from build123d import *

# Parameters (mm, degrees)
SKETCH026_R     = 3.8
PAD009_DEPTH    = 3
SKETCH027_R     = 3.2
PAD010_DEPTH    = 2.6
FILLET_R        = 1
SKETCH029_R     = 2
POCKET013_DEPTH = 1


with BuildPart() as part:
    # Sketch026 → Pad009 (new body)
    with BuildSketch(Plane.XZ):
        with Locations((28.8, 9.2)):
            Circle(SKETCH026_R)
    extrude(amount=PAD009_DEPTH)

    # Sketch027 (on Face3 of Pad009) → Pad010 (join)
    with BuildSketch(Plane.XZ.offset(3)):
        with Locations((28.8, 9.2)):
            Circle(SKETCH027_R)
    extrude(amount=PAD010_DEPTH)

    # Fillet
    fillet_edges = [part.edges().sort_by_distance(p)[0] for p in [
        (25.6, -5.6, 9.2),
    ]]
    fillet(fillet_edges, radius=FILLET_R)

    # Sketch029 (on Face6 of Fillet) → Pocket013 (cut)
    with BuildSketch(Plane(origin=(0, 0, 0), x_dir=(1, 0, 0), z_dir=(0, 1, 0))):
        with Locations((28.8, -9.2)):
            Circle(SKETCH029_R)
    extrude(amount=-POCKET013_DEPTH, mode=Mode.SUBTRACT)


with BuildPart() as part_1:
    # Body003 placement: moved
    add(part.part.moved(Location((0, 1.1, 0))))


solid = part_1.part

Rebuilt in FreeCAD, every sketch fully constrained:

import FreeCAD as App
import Part
import Sketcher
from FreeCAD import Vector
Q = App.Units.Quantity


def edges_at(feature, points):
    """Names of the edges that pass closest to the given points."""
    edges = feature.Shape.Edges
    near = lambda p: min(range(len(edges)), key=lambda i: edges[i].distToShape(Part.Vertex(*p))[0])
    return sorted({f"Edge{near(p) + 1}" for p in points})

doc = App.newDocument("Part")
body = doc.addObject("PartDesign::Body", "Body")

# Sketch on XZ plane
sketch1 = doc.addObject("Sketcher::SketchObject", "Sketch")
body.addObject(sketch1)
sketch1.AttachmentSupport = (doc.XZ_Plane, [""])
sketch1.MapMode = "FlatFace"
sketch1.addGeometry(Part.Circle(Vector(28.8, 9.2, 0), Vector(0, 0, 1), 3.8), False)
sketch1.addConstraint([
    Sketcher.Constraint("Diameter", 0, Q("7.6 mm")),
    Sketcher.Constraint("DistanceX", -1, 1, 0, 3, Q("28.8 mm")),
    Sketcher.Constraint("DistanceY", -1, 1, 0, 3, Q("9.2 mm")),
])
pad1 = doc.addObject("PartDesign::Pad", "Pad")
body.addObject(pad1)
pad1.Profile = sketch1
pad1.Length = 3

# Sketch on XZ plane
sketch2 = doc.addObject("Sketcher::SketchObject", "Sketch001")
body.addObject(sketch2)
sketch2.AttachmentSupport = (doc.XZ_Plane, [""])
sketch2.MapMode = "FlatFace"
sketch2.AttachmentOffset = App.Placement(Vector(0, 0, 3), App.Rotation())
sketch2.addGeometry(Part.Circle(Vector(28.8, 9.2, 0), Vector(0, 0, 1), 3.2), False)
sketch2.addConstraint([
    Sketcher.Constraint("Diameter", 0, Q("6.4 mm")),
    Sketcher.Constraint("DistanceX", -1, 1, 0, 3, Q("28.8 mm")),
    Sketcher.Constraint("DistanceY", -1, 1, 0, 3, Q("9.2 mm")),
])
pad2 = doc.addObject("PartDesign::Pad", "Pad001")
body.addObject(pad2)
pad2.Profile = sketch2
pad2.Length = 2.6
doc.recompute()

fillet = doc.addObject("PartDesign::Fillet", "Fillet")
body.addObject(fillet)
fillet.Base = (pad2, edges_at(pad2, [(25.6, -5.6, 9.2)]))
fillet.Radius = 1

# Sketch on XZ plane
sketch3 = doc.addObject("Sketcher::SketchObject", "Sketch002")
body.addObject(sketch3)
sketch3.AttachmentSupport = (doc.XZ_Plane, [""])
sketch3.MapMode = "FlatFace"
sketch3.addGeometry(Part.Circle(Vector(28.8, 9.2, 0), Vector(0, 0, 1), 2), False)
sketch3.addConstraint([
    Sketcher.Constraint("Diameter", 0, Q("4 mm")),
    Sketcher.Constraint("DistanceX", -1, 1, 0, 3, Q("28.8 mm")),
    Sketcher.Constraint("DistanceY", -1, 1, 0, 3, Q("9.2 mm")),
])
pocket1 = doc.addObject("PartDesign::Pocket", "Pocket")
body.addObject(pocket1)
pocket1.Profile = sketch3
pocket1.Length = 1
pocket1.Reversed = True
body2 = doc.addObject("PartDesign::Body", "Body001")
doc.recompute()

body.Placement = App.Placement(Vector(0, 1.1, 0), App.Rotation(Vector(0, 0, 1), 0))
boolean = doc.addObject("PartDesign::Boolean", "Boolean")
body2.addObject(boolean)
boolean.Type = "Fuse"
boolean.addObjects([body])

doc.recompute()
